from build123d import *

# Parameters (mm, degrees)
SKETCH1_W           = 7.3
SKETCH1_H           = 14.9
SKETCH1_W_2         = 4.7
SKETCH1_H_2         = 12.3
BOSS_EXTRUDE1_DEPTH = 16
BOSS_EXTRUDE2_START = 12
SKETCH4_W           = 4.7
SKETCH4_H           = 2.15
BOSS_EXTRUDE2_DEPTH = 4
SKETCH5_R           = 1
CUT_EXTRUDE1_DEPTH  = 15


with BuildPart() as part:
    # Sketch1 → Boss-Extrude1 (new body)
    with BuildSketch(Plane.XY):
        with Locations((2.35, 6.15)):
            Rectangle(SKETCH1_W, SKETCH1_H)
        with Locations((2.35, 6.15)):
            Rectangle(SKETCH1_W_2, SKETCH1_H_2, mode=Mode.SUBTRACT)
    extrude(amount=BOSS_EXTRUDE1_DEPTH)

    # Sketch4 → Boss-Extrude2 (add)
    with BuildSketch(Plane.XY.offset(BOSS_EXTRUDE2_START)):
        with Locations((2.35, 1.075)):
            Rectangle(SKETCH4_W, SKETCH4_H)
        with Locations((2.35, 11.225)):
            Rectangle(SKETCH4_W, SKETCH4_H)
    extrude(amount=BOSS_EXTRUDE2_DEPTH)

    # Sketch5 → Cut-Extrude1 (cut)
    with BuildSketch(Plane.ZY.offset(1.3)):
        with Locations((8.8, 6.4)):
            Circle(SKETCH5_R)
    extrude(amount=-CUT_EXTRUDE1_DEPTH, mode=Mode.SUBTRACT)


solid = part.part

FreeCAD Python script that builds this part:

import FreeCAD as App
import Part
import Sketcher
from FreeCAD import Vector
Q = App.Units.Quantity


def add_polygon(sketch, points):
    """Adds a closed chain of lines whose ends are joined by coincident constraints."""
    first, n = sketch.GeometryCount, len(points)
    for a, b in zip(points, points[1:] + points[:1]):
        sketch.addGeometry(Part.LineSegment(App.Vector(*a, 0), App.Vector(*b, 0)), False)
    for i in range(n):
        sketch.addConstraint(Sketcher.Constraint("Coincident", first + i, 2, first + (i + 1) % n, 1))

doc = App.newDocument("Part")
body = doc.addObject("PartDesign::Body", "Body")

# Sketch on XY plane
sketch1 = body.newObject("Sketcher::SketchObject", "Sketch")
sketch1.AttachmentSupport = (doc.getObject("XY_Plane"), [""])
sketch1.MapMode = "FlatFace"
add_polygon(sketch1, [(-1.3, 13.6), (-1.3, -1.3), (6, -1.3), (6, 13.6)])  # lines 0-3
add_polygon(sketch1, [(4.7, 0), (0, 0), (0, 12.3), (4.7, 12.3)])  # lines 4-7
sketch1.addConstraint([
    Sketcher.Constraint("Vertical", 0),
    Sketcher.Constraint("Horizontal", 1),
    Sketcher.Constraint("Vertical", 2),
    Sketcher.Constraint("Horizontal", 3),
    Sketcher.Constraint("Horizontal", 4),
    Sketcher.Constraint("Vertical", 5),
    Sketcher.Constraint("Horizontal", 6),
    Sketcher.Constraint("Vertical", 7),
    Sketcher.Constraint("Coincident", 4, 2, -1, 1),
    Sketcher.Constraint("DistanceX", 1, 1, 1, 2, Q("7.3 mm")),
    Sketcher.Constraint("DistanceX", 4, 2, 4, 1, Q("4.7 mm")),
    Sketcher.Constraint("DistanceY", 0, 2, 0, 1, Q("14.9 mm")),
    Sketcher.Constraint("DistanceY", 5, 1, 5, 2, Q("12.3 mm")),
    Sketcher.Constraint("DistanceX", -1, 1, 1, 2, Q("6 mm")),
    Sketcher.Constraint("DistanceY", 0, 2, -1, 1, Q("1.3 mm")),
])
pad1 = body.newObject("PartDesign::Pad", "Pad")
pad1.Profile = sketch1
pad1.Length = 16

# Sketch on XY plane
sketch2 = body.newObject("Sketcher::SketchObject", "Sketch001")
sketch2.AttachmentSupport = (doc.getObject("XY_Plane"), [""])
sketch2.MapMode = "FlatFace"
sketch2.AttachmentOffset = App.Placement(Vector(0, 0, 12), App.Rotation())
add_polygon(sketch2, [(0, 2.1), (0, 0), (4.7, 0), (4.7, 2.1)])  # lines 0-3
add_polygon(sketch2, [(0, 12.3), (0, 10.2), (4.7, 10.2), (4.7, 12.3)])  # lines 4-7
sketch2.addConstraint([
    Sketcher.Constraint("Vertical", 0),
    Sketcher.Constraint("Horizontal", 1),
    Sketcher.Constraint("Vertical", 2),
    Sketcher.Constraint("Horizontal", 3),
    Sketcher.Constraint("Vertical", 4),
    Sketcher.Constraint("Horizontal", 5),
    Sketcher.Constraint("Vertical", 6),
    Sketcher.Constraint("Horizontal", 7),
    Sketcher.Constraint("Coincident", 0, 2, -1, 1),
    Sketcher.Constraint("PointOnObject", 4, 2, -2),
    Sketcher.Constraint("Vertical", 2, 2, 5, 2),
    Sketcher.Constraint("Equal", 2, 4),
    Sketcher.Constraint("DistanceX", 1, 1, 1, 2, Q("4.7 mm")),
    Sketcher.Constraint("DistanceY", 3, 2, 4, 2, Q("8 mm")),
    Sketcher.Constraint("DistanceY", 0, 2, 0, 1, Q("2.15 mm")),
])
pad2 = body.newObject("PartDesign::Pad", "Pad001")
pad2.Profile = sketch2
pad2.Length = 4

# Sketch on YZ plane
sketch3 = body.newObject("Sketcher::SketchObject", "Sketch002")
sketch3.AttachmentSupport = (doc.getObject("YZ_Plane"), [""])
sketch3.MapMode = "FlatFace"
sketch3.AttachmentOffset = App.Placement(Vector(0, 0, -1.3), App.Rotation())
sketch3.addGeometry(Part.Circle(Vector(6.4, 8.8, 0), Vector(0, 0, 1), 1), False)
sketch3.addConstraint([
    Sketcher.Constraint("Diameter", 0, Q("2 mm")),
    Sketcher.Constraint("DistanceX", -1, 1, 0, 3, Q("6.4 mm")),
    Sketcher.Constraint("DistanceY", -1, 1, 0, 3, Q("8.8 mm")),
])
pocket1 = body.newObject("PartDesign::Pocket", "Pocket")
pocket1.Profile = sketch3
pocket1.Length = 15
pocket1.Reversed = True

doc.recompute()
